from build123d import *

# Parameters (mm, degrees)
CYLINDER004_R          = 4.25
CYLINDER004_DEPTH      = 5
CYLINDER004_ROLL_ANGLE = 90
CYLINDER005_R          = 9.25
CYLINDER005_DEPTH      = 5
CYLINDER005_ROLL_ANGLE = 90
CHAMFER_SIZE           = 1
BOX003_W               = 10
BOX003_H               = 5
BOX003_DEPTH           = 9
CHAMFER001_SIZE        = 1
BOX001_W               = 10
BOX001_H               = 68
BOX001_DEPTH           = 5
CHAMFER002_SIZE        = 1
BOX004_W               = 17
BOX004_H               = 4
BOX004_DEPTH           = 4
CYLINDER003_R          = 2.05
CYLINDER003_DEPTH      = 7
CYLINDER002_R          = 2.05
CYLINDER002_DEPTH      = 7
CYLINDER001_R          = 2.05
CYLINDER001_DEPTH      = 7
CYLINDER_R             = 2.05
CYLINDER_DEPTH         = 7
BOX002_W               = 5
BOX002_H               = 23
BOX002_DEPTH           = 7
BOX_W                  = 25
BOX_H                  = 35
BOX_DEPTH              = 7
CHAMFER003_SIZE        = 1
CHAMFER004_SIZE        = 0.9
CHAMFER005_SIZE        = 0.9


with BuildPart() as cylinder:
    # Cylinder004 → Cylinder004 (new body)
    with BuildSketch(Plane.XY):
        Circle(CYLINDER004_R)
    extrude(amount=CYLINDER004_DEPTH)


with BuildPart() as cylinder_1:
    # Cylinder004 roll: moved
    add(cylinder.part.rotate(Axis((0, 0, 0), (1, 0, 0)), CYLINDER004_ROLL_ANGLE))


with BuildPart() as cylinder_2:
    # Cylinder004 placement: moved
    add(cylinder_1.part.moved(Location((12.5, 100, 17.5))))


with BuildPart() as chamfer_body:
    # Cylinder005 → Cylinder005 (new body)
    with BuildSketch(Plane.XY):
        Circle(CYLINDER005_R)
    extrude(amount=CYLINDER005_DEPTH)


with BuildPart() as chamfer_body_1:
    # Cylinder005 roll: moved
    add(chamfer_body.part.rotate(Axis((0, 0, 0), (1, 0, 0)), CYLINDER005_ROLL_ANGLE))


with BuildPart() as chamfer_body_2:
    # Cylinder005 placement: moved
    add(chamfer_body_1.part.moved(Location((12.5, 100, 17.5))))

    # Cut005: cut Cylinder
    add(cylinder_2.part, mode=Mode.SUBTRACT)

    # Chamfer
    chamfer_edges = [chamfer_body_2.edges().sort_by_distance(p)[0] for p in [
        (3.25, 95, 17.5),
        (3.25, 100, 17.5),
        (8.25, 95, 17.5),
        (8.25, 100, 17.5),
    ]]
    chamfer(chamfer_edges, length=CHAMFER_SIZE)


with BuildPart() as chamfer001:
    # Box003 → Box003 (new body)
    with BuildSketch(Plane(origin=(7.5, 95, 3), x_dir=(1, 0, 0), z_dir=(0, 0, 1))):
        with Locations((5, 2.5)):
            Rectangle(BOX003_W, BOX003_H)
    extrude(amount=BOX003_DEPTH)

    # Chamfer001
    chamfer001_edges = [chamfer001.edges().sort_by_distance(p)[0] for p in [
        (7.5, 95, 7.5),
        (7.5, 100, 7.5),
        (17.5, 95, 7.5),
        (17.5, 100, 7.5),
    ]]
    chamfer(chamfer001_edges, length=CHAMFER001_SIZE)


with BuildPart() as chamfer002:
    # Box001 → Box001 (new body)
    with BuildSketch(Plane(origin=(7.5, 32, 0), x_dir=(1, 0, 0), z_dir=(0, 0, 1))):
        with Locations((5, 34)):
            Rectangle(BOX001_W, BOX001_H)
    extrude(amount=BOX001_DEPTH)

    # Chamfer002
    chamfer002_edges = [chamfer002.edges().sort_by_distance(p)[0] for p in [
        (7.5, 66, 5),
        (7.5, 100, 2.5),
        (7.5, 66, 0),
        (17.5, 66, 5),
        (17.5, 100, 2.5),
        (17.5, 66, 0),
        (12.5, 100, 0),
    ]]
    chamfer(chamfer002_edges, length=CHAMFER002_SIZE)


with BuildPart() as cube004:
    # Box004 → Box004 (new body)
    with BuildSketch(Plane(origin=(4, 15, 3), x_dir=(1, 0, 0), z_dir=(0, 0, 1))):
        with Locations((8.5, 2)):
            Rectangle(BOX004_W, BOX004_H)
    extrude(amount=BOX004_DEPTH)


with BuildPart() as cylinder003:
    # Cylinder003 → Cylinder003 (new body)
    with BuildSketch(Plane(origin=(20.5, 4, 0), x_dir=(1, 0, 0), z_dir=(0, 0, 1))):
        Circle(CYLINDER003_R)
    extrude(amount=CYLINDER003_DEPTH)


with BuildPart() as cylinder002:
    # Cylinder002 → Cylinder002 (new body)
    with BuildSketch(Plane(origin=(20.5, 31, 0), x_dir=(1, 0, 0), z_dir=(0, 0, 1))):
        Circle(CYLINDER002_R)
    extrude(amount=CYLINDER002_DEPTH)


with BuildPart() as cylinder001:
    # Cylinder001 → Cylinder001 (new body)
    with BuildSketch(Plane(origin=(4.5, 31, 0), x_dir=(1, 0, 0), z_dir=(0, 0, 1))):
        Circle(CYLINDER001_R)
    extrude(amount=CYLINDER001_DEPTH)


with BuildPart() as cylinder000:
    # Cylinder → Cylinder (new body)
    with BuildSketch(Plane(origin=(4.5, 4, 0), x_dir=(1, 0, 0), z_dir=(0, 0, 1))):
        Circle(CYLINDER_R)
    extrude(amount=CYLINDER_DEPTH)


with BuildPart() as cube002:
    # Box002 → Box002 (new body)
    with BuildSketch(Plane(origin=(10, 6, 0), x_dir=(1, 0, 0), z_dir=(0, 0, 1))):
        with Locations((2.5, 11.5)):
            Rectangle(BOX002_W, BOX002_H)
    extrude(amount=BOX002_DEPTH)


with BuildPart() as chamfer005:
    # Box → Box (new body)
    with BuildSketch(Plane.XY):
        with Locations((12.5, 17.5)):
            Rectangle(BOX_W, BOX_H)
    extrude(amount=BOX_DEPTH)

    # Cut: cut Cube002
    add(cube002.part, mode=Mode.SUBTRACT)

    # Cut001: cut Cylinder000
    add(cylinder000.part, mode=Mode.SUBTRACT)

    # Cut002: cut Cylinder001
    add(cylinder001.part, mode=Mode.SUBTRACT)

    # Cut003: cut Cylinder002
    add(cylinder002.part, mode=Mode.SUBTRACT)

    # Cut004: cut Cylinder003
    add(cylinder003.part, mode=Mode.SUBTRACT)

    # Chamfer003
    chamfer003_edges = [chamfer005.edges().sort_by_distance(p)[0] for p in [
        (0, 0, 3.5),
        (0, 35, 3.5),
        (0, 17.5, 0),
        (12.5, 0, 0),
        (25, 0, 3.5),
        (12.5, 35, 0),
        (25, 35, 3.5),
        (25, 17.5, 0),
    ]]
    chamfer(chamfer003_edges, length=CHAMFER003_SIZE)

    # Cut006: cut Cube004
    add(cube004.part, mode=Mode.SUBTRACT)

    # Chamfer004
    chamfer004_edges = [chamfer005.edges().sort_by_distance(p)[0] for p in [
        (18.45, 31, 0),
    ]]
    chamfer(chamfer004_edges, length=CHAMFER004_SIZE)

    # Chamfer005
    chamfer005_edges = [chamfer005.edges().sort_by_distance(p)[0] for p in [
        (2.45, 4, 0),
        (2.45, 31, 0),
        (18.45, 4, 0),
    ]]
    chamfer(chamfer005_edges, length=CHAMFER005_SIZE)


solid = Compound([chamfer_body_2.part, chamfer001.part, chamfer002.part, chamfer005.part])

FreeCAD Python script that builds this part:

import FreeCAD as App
import Part
import Sketcher

V = App.Vector


def edges_at(feature, points):
    """Names of the edges that pass closest to the given points."""
    edges = feature.Shape.Edges
    near = lambda p: min(range(len(edges)), key=lambda i: edges[i].distToShape(Part.Vertex(*p))[0])
    return sorted({f"Edge{near(p) + 1}" for p in points})


def add_polygon(sketch, points):
    """Adds a closed chain of lines whose ends are joined by coincident constraints."""
    first, n = sketch.GeometryCount, len(points)
    for a, b in zip(points, points[1:] + points[:1]):
        sketch.addGeometry(Part.LineSegment(App.Vector(*a, 0), App.Vector(*b, 0)), False)
    for i in range(n):
        sketch.addConstraint(Sketcher.Constraint("Coincident", first + i, 2, first + (i + 1) % n, 1))

doc = App.newDocument("Part")
body = doc.addObject("PartDesign::Body", "Body")

sketch1 = body.newObject("Sketcher::SketchObject", "Sketch")
sketch1.AttachmentSupport = (doc.getObject("XY_Plane"), [""])
sketch1.MapMode = "FlatFace"
sketch1.addGeometry(Part.Circle(V(0, 0, 0), V(0, 0, 1), 4.2), False)
sketch1.addConstraint([
    Sketcher.Constraint("Coincident", 0, 3, -1, 1),
    Sketcher.Constraint("Diameter", 0, 8.5),
])
pad1 = body.newObject("PartDesign::Pad", "Pad")
pad1.Profile = sketch1
pad1.Length = 5
body2 = doc.addObject("PartDesign::Body", "Body001")
doc.recompute()

body.Placement = App.Placement(V(0, 0, 0), App.Rotation(V(1, 0, 0), 90))
boolean = body2.newObject("PartDesign::Boolean", "Boolean")
boolean.Type = "Fuse"
boolean.addObjects([body])
body3 = doc.addObject("PartDesign::Body", "Body002")
doc.recompute()

body2.Placement = App.Placement(V(12.5, 100, 17.5), App.Rotation(V(0, 0, 1), 0))
boolean2 = body3.newObject("PartDesign::Boolean", "Boolean001")
boolean2.Type = "Fuse"
boolean2.addObjects([body2])
body4 = doc.addObject("PartDesign::Body", "Body003")

sketch2 = body4.newObject("Sketcher::SketchObject", "Sketch001")
sketch2.AttachmentSupport = (doc.getObject("XY_Plane003"), [""])
sketch2.MapMode = "FlatFace"
sketch2.addGeometry(Part.Circle(V(0, 0, 0), V(0, 0, 1), 9), False)
sketch2.addConstraint([
    Sketcher.Constraint("Coincident", 0, 3, -1, 1),
    Sketcher.Constraint("Diameter", 0, 18.5),
])
pad2 = body4.newObject("PartDesign::Pad", "Pad001")
pad2.Profile = sketch2
pad2.Length = 5
body5 = doc.addObject("PartDesign::Body", "Body004")
doc.recompute()

body4.Placement = App.Placement(V(0, 0, 0), App.Rotation(V(1, 0, 0), 90))
boolean3 = body5.newObject("PartDesign::Boolean", "Boolean002")
boolean3.Type = "Fuse"
boolean3.addObjects([body4])
body6 = doc.addObject("PartDesign::Body", "Body005")
doc.recompute()

body5.Placement = App.Placement(V(12.5, 100, 17.5), App.Rotation(V(0, 0, 1), 0))
boolean4 = body6.newObject("PartDesign::Boolean", "Boolean003")
boolean4.Type = "Fuse"
boolean4.addObjects([body5])
doc.recompute()

boolean5 = body6.newObject("PartDesign::Boolean", "Boolean004")
boolean5.Type = "Cut"
boolean5.addObjects([body3])
doc.recompute()

chamfer = body6.newObject("PartDesign::Chamfer", "Chamfer")
chamfer.Base = (boolean5, edges_at(boolean5, [
    (3.25, 95, 17.5),
    (3.25, 100, 17.5),
    (8.25, 95, 17.5),
    (8.25, 100, 17.5),
]))
chamfer.Size = 1
body7 = doc.addObject("PartDesign::Body", "Body006")

sketch3 = body7.newObject("Sketcher::SketchObject", "Sketch002")
sketch3.AttachmentSupport = (doc.getObject("XY_Plane006"), [""])
sketch3.MapMode = "FlatFace"
sketch3.AttachmentOffset = App.Placement(V(0, 0, 3), App.Rotation())
add_polygon(sketch3, [(8, 100), (8, 95), (18, 95), (18, 100)])
sketch3.addConstraint([
    Sketcher.Constraint("Vertical", 0),
    Sketcher.Constraint("Horizontal", 1),
    Sketcher.Constraint("Vertical", 2),
    Sketcher.Constraint("Horizontal", 3),
    Sketcher.Constraint("DistanceX", 1, 1, 1, 2, 10.0),
    Sketcher.Constraint("DistanceY", 0, 2, 0, 1, 5.0),
    Sketcher.Constraint("DistanceY", -1, 1, 0, 2, 95.0),
    Sketcher.Constraint("DistanceX", -1, 1, 0, 2, 7.5),
])
pad3 = body7.newObject("PartDesign::Pad", "Pad002")
pad3.Profile = sketch3
pad3.Length = 9
doc.recompute()

chamfer2 = body7.newObject("PartDesign::Chamfer", "Chamfer001")
chamfer2.Base = (pad3, edges_at(pad3, [
    (7.5, 95, 7.5),
    (7.5, 100, 7.5),
    (17.5, 95, 7.5),
    (17.5, 100, 7.5),
]))
chamfer2.Size = 1
body8 = doc.addObject("PartDesign::Body", "Body007")

sketch4 = body8.newObject("Sketcher::SketchObject", "Sketch003")
sketch4.AttachmentSupport = (doc.getObject("XY_Plane007"), [""])
sketch4.MapMode = "FlatFace"
add_polygon(sketch4, [(8, 100), (8, 32), (18, 32), (18, 100)])
sketch4.addConstraint([
    Sketcher.Constraint("Vertical", 0),
    Sketcher.Constraint("Horizontal", 1),
    Sketcher.Constraint("Vertical", 2),
    Sketcher.Constraint("Horizontal", 3),
    Sketcher.Constraint("DistanceX", 1, 1, 1, 2, 10.0),
    Sketcher.Constraint("DistanceY", 0, 2, 0, 1, 68.0),
    Sketcher.Constraint("DistanceY", -1, 1, 0, 2, 32.0),
    Sketcher.Constraint("DistanceX", -1, 1, 0, 2, 7.5),
])
pad4 = body8.newObject("PartDesign::Pad", "Pad003")
pad4.Profile = sketch4
pad4.Length = 5
doc.recompute()

chamfer3 = body8.newObject("PartDesign::Chamfer", "Chamfer002")
chamfer3.Base = (pad4, edges_at(pad4, [
    (7.5, 66, 5),
    (7.5, 100, 2.5),
    (7.5, 66, 0),
    (17.5, 66, 5),
    (17.5, 100, 2.5),
    (17.5, 66, 0),
    (12.5, 100, 0),
]))
chamfer3.Size = 1
body9 = doc.addObject("PartDesign::Body", "Body008")

sketch5 = body9.newObject("Sketcher::SketchObject", "Sketch004")
sketch5.AttachmentSupport = (doc.getObject("XY_Plane008"), [""])
sketch5.MapMode = "FlatFace"
sketch5.AttachmentOffset = App.Placement(V(0, 0, 3), App.Rotation())
add_polygon(sketch5, [(4, 19), (4, 15), (21, 15), (21, 19)])
sketch5.addConstraint([
    Sketcher.Constraint("Vertical", 0),
    Sketcher.Constraint("Horizontal", 1),
    Sketcher.Constraint("Vertical", 2),
    Sketcher.Constraint("Horizontal", 3),
    Sketcher.Constraint("DistanceX", 1, 1, 1, 2, 17.0),
    Sketcher.Constraint("DistanceY", 0, 2, 0, 1, 4.0),
    Sketcher.Constraint("DistanceX", -1, 1, 0, 2, 4.0),
    Sketcher.Constraint("DistanceY", -1, 1, 0, 2, 15.0),
])
pad5 = body9.newObject("PartDesign::Pad", "Pad004")
pad5.Profile = sketch5
pad5.Length = 4
body10 = doc.addObject("PartDesign::Body", "Body009")

sketch6 = body10.newObject("Sketcher::SketchObject", "Sketch005")
sketch6.AttachmentSupport = (doc.getObject("XY_Plane009"), [""])
sketch6.MapMode = "FlatFace"
sketch6.addGeometry(Part.Circle(V(20.5, 4, 0), V(0, 0, 1), 2), False)
sketch6.addConstraint([
    Sketcher.Constraint("Diameter", 0, 4.1),
    Sketcher.Constraint("DistanceY", -1, 1, 0, 3, 4.0),
    Sketcher.Constraint("DistanceX", -1, 1, 0, 3, 20.5),
])
pad6 = body10.newObject("PartDesign::Pad", "Pad005")
pad6.Profile = sketch6
pad6.Length = 7
body11 = doc.addObject("PartDesign::Body", "Body010")

sketch7 = body11.newObject("Sketcher::SketchObject", "Sketch006")
sketch7.AttachmentSupport = (doc.getObject("XY_Plane010"), [""])
sketch7.MapMode = "FlatFace"
sketch7.addGeometry(Part.Circle(V(20.5, 31, 0), V(0, 0, 1), 2), False)
sketch7.addConstraint([
    Sketcher.Constraint("Diameter", 0, 4.1),
    Sketcher.Constraint("DistanceY", -1, 1, 0, 3, 31.0),
    Sketcher.Constraint("DistanceX", -1, 1, 0, 3, 20.5),
])
pad7 = body11.newObject("PartDesign::Pad", "Pad006")
pad7.Profile = sketch7
pad7.Length = 7
body12 = doc.addObject("PartDesign::Body", "Body011")

sketch8 = body12.newObject("Sketcher::SketchObject", "Sketch007")
sketch8.AttachmentSupport = (doc.getObject("XY_Plane011"), [""])
sketch8.MapMode = "FlatFace"
sketch8.addGeometry(Part.Circle(V(4.5, 31, 0), V(0, 0, 1), 2), False)
sketch8.addConstraint([
    Sketcher.Constraint("Diameter", 0, 4.1),
    Sketcher.Constraint("DistanceY", -1, 1, 0, 3, 31.0),
    Sketcher.Constraint("DistanceX", -1, 1, 0, 3, 4.5),
])
pad8 = body12.newObject("PartDesign::Pad", "Pad007")
pad8.Profile = sketch8
pad8.Length = 7
body13 = doc.addObject("PartDesign::Body", "Body012")

sketch9 = body13.newObject("Sketcher::SketchObject", "Sketch008")
sketch9.AttachmentSupport = (doc.getObject("XY_Plane012"), [""])
sketch9.MapMode = "FlatFace"
sketch9.addGeometry(Part.Circle(V(4.5, 4, 0), V(0, 0, 1), 2), False)
sketch9.addConstraint([
    Sketcher.Constraint("Diameter", 0, 4.1),
    Sketcher.Constraint("DistanceY", -1, 1, 0, 3, 4.0),
    Sketcher.Constraint("DistanceX", -1, 1, 0, 3, 4.5),
])
pad9 = body13.newObject("PartDesign::Pad", "Pad008")
pad9.Profile = sketch9
pad9.Length = 7
body14 = doc.addObject("PartDesign::Body", "Body013")

sketch10 = body14.newObject("Sketcher::SketchObject", "Sketch009")
sketch10.AttachmentSupport = (doc.getObject("XY_Plane013"), [""])
sketch10.MapMode = "FlatFace"
add_polygon(sketch10, [(10, 29), (10, 6), (15, 6), (15, 29)])
sketch10.addConstraint([
    Sketcher.Constraint("Vertical", 0),
    Sketcher.Constraint("Horizontal", 1),
    Sketcher.Constraint("Vertical", 2),
    Sketcher.Constraint("Horizontal", 3),
    Sketcher.Constraint("DistanceX", 1, 1, 1, 2, 5.0),
    Sketcher.Constraint("DistanceY", 0, 2, 0, 1, 23.0),
    Sketcher.Constraint("DistanceX", -1, 1, 0, 2, 10.0),
    Sketcher.Constraint("DistanceY", -1, 1, 0, 2, 6.0),
])
pad10 = body14.newObject("PartDesign::Pad", "Pad009")
pad10.Profile = sketch10
pad10.Length = 7
body15 = doc.addObject("PartDesign::Body", "Body014")

sketch11 = body15.newObject("Sketcher::SketchObject", "Sketch010")
sketch11.AttachmentSupport = (doc.getObject("XY_Plane014"), [""])
sketch11.MapMode = "FlatFace"
add_polygon(sketch11, [(0, 35), (0, 0), (25, 0), (25, 35)])
sketch11.addConstraint([
    Sketcher.Constraint("Vertical", 0),
    Sketcher.Constraint("Horizontal", 1),
    Sketcher.Constraint("Vertical", 2),
    Sketcher.Constraint("Horizontal", 3),
    Sketcher.Constraint("Coincident", 0, 2, -1, 1),
    Sketcher.Constraint("DistanceX", 1, 1, 1, 2, 25.0),
    Sketcher.Constraint("DistanceY", 0, 2, 0, 1, 35.0),
])
pad11 = body15.newObject("PartDesign::Pad", "Pad010")
pad11.Profile = sketch11
pad11.Length = 7
doc.recompute()

boolean6 = body15.newObject("PartDesign::Boolean", "Boolean005")
boolean6.Type = "Cut"
boolean6.addObjects([body14])
doc.recompute()

boolean7 = body15.newObject("PartDesign::Boolean", "Boolean006")
boolean7.Type = "Cut"
boolean7.addObjects([body13])
doc.recompute()

boolean8 = body15.newObject("PartDesign::Boolean", "Boolean007")
boolean8.Type = "Cut"
boolean8.addObjects([body12])
doc.recompute()

boolean9 = body15.newObject("PartDesign::Boolean", "Boolean008")
boolean9.Type = "Cut"
boolean9.addObjects([body11])
doc.recompute()

boolean10 = body15.newObject("PartDesign::Boolean", "Boolean009")
boolean10.Type = "Cut"
boolean10.addObjects([body10])
doc.recompute()

chamfer4 = body15.newObject("PartDesign::Chamfer", "Chamfer003")
chamfer4.Base = (boolean10, edges_at(boolean10, [
    (0, 0, 3.5),
    (0, 35, 3.5),
    (0, 17.5, 0),
    (12.5, 0, 0),
    (25, 0, 3.5),
    (12.5, 35, 0),
    (25, 35, 3.5),
    (25, 17.5, 0),
]))
chamfer4.Size = 1
doc.recompute()

boolean11 = body15.newObject("PartDesign::Boolean", "Boolean010")
boolean11.Type = "Cut"
boolean11.addObjects([body9])
doc.recompute()

chamfer5 = body15.newObject("PartDesign::Chamfer", "Chamfer004")
chamfer5.Base = (boolean11, edges_at(boolean11, [(18.45, 31, 0)]))
chamfer5.Size = 0.9
doc.recompute()

chamfer6 = body15.newObject("PartDesign::Chamfer", "Chamfer005")
chamfer6.Base = (chamfer5, edges_at(chamfer5, [(2.45, 4, 0), (2.45, 31, 0), (18.45, 4, 0)]))
chamfer6.Size = 0.9

doc.recompute()
